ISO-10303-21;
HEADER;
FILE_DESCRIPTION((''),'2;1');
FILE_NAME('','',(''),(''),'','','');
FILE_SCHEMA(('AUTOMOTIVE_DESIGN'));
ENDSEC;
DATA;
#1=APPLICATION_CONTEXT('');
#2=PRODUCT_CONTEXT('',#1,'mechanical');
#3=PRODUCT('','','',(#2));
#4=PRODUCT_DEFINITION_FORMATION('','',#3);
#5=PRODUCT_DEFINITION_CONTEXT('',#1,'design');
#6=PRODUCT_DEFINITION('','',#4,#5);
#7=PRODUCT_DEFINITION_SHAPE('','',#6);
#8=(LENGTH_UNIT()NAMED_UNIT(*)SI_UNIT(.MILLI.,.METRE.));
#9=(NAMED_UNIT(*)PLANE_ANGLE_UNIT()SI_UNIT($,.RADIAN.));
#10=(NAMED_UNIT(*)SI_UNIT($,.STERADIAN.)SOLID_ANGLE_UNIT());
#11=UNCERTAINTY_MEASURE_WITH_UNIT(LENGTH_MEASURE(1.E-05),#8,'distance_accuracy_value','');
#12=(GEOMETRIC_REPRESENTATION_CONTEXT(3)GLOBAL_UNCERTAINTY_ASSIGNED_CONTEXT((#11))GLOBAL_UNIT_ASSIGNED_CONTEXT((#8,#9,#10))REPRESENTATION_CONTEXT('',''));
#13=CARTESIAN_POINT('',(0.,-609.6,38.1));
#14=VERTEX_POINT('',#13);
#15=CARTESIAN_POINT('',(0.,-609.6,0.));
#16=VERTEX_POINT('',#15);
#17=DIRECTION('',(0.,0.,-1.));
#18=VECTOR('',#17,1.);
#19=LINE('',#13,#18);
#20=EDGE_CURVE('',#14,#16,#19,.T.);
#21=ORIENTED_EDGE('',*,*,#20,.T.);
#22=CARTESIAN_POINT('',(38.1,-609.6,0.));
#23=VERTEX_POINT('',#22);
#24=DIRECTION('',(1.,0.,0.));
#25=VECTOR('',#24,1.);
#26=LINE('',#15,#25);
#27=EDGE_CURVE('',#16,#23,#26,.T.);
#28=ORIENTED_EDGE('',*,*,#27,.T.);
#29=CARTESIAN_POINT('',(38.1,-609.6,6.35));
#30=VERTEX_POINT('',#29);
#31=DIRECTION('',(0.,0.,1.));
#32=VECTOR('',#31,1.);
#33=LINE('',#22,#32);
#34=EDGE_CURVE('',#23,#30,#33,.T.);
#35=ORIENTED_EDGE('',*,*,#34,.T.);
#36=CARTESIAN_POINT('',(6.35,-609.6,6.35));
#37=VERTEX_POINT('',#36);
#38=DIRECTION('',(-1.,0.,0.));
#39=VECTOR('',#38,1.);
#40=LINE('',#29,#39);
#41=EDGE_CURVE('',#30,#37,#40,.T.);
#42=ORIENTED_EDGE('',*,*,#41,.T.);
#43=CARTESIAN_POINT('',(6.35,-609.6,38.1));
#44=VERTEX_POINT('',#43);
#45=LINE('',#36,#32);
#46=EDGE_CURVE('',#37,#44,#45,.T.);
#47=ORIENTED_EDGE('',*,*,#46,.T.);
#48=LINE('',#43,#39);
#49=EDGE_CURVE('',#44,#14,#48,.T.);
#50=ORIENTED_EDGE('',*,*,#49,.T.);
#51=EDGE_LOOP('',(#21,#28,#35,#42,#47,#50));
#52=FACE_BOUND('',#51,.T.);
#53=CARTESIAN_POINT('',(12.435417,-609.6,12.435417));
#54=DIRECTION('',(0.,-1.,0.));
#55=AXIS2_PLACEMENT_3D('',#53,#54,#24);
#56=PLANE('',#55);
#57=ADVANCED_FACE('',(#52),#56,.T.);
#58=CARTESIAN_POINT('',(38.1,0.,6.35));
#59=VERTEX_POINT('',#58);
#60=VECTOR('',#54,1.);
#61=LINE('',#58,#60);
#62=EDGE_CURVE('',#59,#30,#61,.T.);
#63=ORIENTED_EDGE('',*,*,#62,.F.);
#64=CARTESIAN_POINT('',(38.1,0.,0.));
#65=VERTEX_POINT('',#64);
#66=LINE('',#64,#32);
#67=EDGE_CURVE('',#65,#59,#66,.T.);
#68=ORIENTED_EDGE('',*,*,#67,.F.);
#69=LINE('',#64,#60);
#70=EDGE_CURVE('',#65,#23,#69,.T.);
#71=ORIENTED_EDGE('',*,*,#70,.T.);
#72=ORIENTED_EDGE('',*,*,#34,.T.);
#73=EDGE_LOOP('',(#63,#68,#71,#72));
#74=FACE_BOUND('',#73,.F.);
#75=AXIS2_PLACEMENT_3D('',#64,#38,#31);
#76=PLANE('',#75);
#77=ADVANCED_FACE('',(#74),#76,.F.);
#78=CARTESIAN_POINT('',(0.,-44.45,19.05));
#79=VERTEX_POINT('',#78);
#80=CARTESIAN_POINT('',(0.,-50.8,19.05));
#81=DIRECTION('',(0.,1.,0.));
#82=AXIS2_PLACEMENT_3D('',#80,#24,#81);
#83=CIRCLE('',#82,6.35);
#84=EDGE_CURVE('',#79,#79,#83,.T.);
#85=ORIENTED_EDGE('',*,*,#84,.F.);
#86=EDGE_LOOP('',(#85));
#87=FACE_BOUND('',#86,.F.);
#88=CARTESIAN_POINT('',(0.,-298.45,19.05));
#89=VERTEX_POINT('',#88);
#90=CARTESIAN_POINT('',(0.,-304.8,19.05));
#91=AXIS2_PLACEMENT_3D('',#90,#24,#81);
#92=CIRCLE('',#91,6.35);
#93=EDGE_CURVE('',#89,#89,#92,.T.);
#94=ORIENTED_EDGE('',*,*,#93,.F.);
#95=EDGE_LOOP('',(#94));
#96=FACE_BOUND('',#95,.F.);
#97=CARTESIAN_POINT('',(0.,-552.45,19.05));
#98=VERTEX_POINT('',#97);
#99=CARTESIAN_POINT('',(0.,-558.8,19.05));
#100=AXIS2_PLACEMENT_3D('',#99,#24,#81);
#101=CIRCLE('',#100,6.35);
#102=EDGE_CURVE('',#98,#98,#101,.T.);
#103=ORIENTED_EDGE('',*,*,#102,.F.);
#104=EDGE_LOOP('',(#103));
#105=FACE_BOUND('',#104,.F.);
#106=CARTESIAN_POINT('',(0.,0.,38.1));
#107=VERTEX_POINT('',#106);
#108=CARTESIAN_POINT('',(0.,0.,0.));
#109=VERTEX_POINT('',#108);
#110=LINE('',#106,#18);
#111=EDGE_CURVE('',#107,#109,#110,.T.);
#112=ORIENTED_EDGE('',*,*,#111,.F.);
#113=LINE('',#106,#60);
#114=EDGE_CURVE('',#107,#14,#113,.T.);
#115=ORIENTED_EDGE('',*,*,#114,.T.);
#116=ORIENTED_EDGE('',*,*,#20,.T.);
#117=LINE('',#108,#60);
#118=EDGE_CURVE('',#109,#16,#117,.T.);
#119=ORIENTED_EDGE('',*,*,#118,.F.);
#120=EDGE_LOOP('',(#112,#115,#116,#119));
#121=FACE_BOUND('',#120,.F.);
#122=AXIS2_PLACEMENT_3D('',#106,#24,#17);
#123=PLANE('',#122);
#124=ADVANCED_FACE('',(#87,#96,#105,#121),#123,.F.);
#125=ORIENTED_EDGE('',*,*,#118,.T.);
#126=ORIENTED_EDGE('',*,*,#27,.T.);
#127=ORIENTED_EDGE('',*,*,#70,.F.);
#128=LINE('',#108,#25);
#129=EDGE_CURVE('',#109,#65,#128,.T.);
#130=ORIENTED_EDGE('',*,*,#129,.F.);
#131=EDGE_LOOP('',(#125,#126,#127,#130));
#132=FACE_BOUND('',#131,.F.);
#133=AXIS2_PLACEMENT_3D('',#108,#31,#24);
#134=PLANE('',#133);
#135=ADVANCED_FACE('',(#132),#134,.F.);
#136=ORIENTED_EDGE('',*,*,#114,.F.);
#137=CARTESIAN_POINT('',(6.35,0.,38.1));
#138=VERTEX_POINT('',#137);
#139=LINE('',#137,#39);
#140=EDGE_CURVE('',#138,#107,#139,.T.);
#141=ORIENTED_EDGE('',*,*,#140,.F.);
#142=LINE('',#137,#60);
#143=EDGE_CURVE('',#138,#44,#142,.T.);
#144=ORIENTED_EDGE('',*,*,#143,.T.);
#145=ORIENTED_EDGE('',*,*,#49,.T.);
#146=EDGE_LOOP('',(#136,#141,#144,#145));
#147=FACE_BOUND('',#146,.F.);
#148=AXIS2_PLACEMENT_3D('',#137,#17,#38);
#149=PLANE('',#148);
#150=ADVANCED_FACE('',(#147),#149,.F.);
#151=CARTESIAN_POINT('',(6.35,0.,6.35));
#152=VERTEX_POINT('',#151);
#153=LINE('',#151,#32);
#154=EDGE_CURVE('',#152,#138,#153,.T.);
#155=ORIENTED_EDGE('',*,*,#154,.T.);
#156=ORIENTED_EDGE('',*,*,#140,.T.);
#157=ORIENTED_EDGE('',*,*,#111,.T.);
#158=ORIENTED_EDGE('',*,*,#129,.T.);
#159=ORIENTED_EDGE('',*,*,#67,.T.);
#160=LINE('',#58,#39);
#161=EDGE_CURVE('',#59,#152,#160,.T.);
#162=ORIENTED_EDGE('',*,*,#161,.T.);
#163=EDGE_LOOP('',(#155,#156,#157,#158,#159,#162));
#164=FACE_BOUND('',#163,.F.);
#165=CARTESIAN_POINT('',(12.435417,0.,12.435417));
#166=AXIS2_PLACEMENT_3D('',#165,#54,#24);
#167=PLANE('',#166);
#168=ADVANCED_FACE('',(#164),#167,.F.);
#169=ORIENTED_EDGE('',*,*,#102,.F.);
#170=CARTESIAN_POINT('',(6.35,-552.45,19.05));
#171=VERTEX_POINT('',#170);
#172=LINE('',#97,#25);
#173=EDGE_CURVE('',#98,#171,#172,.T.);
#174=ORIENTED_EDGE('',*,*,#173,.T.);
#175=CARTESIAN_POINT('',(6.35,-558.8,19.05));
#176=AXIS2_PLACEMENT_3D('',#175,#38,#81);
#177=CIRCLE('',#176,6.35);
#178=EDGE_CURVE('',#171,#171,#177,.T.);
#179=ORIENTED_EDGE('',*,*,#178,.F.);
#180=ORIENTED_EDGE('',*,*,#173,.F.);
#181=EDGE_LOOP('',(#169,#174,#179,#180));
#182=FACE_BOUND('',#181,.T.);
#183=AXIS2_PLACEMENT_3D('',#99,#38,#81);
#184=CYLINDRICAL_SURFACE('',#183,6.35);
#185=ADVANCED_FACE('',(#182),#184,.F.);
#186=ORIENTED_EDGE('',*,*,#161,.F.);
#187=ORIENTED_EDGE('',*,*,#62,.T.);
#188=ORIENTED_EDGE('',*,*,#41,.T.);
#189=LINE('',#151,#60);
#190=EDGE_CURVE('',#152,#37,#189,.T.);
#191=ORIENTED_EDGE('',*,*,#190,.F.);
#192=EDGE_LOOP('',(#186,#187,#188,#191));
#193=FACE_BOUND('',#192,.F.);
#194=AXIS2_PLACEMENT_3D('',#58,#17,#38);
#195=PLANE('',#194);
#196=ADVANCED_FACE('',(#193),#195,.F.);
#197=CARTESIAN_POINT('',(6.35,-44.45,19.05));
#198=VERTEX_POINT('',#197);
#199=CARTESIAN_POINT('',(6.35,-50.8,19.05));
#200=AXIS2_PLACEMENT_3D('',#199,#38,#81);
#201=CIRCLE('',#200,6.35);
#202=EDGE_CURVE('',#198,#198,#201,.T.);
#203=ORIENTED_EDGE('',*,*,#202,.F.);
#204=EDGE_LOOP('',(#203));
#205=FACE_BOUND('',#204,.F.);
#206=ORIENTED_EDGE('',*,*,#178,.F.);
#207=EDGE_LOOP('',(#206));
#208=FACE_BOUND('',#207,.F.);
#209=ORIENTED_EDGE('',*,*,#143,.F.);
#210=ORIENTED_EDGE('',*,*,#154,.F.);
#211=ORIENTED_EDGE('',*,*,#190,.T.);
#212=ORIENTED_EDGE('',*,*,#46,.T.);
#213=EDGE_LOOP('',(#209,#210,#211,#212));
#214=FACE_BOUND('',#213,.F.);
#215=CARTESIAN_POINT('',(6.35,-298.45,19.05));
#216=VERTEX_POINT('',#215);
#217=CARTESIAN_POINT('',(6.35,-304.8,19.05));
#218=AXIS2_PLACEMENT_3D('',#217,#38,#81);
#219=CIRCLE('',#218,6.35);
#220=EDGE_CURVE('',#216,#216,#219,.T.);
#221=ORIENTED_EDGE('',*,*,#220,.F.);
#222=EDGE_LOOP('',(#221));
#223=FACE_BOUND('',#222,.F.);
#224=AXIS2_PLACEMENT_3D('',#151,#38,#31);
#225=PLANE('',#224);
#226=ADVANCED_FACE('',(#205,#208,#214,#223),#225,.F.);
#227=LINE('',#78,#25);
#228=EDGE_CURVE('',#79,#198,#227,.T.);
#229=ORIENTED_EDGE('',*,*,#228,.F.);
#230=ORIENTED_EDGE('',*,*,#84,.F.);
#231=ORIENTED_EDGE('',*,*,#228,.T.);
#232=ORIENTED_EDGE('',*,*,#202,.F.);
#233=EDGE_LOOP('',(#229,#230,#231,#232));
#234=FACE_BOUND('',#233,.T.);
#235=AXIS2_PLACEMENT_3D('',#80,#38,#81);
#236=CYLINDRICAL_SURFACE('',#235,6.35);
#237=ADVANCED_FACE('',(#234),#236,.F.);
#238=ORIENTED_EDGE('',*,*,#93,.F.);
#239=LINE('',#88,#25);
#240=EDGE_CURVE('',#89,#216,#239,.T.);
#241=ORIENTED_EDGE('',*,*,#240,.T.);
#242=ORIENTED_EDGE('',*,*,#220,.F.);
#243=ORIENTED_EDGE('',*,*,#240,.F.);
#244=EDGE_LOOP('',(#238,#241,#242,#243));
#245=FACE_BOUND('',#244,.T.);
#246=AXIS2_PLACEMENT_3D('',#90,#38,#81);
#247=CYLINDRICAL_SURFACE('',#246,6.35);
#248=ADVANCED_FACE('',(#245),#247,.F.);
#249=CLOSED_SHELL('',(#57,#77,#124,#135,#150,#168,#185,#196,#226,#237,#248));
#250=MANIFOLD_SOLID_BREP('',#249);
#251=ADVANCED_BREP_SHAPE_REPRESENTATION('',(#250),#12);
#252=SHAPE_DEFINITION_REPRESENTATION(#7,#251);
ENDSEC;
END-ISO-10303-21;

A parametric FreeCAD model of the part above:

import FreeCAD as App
import Part
import Sketcher
Q = App.Units.Quantity

doc = App.newDocument("Part")
body = doc.addObject("PartDesign::Body", "Body")

sketch1 = body.newObject("Sketcher::SketchObject", "Sketch")
sketch1.AttachmentSupport = (doc.getObject("XZ_Plane"), [""])
sketch1.MapMode = "FlatFace"
sketch1.addGeometry(Part.LineSegment(App.Vector(0, 38.1, 0), App.Vector(0, 0, 0)), False)
sketch1.addGeometry(Part.LineSegment(App.Vector(0, 0, 0), App.Vector(38.1, 0, 0)), False)
sketch1.addGeometry(Part.LineSegment(App.Vector(38.1, 0, 0), App.Vector(38.1, 6.35, 0)), False)
sketch1.addGeometry(Part.LineSegment(App.Vector(38.1, 6.35, 0), App.Vector(6.35, 6.35, 0)), False)
sketch1.addGeometry(Part.LineSegment(App.Vector(6.35, 6.35, 0), App.Vector(6.35, 38.1, 0)), False)
sketch1.addGeometry(Part.LineSegment(App.Vector(6.35, 38.1, 0), App.Vector(0, 38.1, 0)), False)
sketch1.addConstraint(Sketcher.Constraint("Coincident", 0, 2, 1, 1))
sketch1.addConstraint(Sketcher.Constraint("Coincident", 1, 2, 2, 1))
sketch1.addConstraint(Sketcher.Constraint("Coincident", 2, 2, 3, 1))
sketch1.addConstraint(Sketcher.Constraint("Coincident", 3, 2, 4, 1))
sketch1.addConstraint(Sketcher.Constraint("Coincident", 4, 2, 5, 1))
sketch1.addConstraint(Sketcher.Constraint("Coincident", 5, 2, 0, 1))
sketch1.addConstraint(Sketcher.Constraint("Vertical", 0))
sketch1.addConstraint(Sketcher.Constraint("Horizontal", 1))
sketch1.addConstraint(Sketcher.Constraint("Vertical", 2))
sketch1.addConstraint(Sketcher.Constraint("Horizontal", 3))
sketch1.addConstraint(Sketcher.Constraint("Vertical", 4))
sketch1.addConstraint(Sketcher.Constraint("Horizontal", 5))
sketch1.addConstraint(Sketcher.Constraint("Coincident", 0, 2, -1, 1))
sketch1.addConstraint(Sketcher.Constraint("Equal", 1, 0))
sketch1.addConstraint(Sketcher.Constraint("Equal", 5, 2))
sketch1.addConstraint(Sketcher.Constraint("DistanceX", 1, 1, 1, 2, Q("1.5 in")))
sketch1.addConstraint(Sketcher.Constraint("DistanceX", 3, 2, 3, 1, Q("1.25 in")))
pad1 = body.newObject("PartDesign::Pad", "Pad")
pad1.Profile = sketch1
pad1.Length = Q("24 in")

sketch2 = body.newObject("Sketcher::SketchObject", "Sketch001")
sketch2.AttachmentSupport = (doc.getObject("YZ_Plane"), [""])
sketch2.MapMode = "FlatFace"
sketch2.addGeometry(Part.Circle(App.Vector(-50.8, 19.05, 0), App.Vector(0, 0, 1), 6.35), False)
sketch2.addGeometry(Part.Circle(App.Vector(-304.8, 19.05, 0), App.Vector(0, 0, 1), 6.35), False)
sketch2.addGeometry(Part.Circle(App.Vector(-558.8, 19.05, 0), App.Vector(0, 0, 1), 6.35), False)
sketch2.addConstraint(Sketcher.Constraint("Equal", 0, 1))
sketch2.addConstraint(Sketcher.Constraint("Equal", 1, 2))
sketch2.addConstraint(Sketcher.Constraint("Horizontal", 0, 3, 1, 3))
sketch2.addConstraint(Sketcher.Constraint("Horizontal", 1, 3, 2, 3))
sketch2.addConstraint(Sketcher.Constraint("Diameter", 0, Q("0.5 in")))
sketch2.addConstraint(Sketcher.Constraint("DistanceX", 0, 3, -1, 1, Q("2 in")))
sketch2.addConstraint(Sketcher.Constraint("DistanceX", 1, 3, -1, 1, Q("12 in")))
sketch2.addConstraint(Sketcher.Constraint("DistanceX", 2, 3, -1, 1, Q("22 in")))
sketch2.addConstraint(Sketcher.Constraint("DistanceY", -1, 1, 0, 3, Q("0.75 in")))
pocket1 = body.newObject("PartDesign::Pocket", "Pocket")
pocket1.Profile = sketch2
pocket1.Length = Q("1 in")
pocket1.Reversed = True

doc.recompute()
